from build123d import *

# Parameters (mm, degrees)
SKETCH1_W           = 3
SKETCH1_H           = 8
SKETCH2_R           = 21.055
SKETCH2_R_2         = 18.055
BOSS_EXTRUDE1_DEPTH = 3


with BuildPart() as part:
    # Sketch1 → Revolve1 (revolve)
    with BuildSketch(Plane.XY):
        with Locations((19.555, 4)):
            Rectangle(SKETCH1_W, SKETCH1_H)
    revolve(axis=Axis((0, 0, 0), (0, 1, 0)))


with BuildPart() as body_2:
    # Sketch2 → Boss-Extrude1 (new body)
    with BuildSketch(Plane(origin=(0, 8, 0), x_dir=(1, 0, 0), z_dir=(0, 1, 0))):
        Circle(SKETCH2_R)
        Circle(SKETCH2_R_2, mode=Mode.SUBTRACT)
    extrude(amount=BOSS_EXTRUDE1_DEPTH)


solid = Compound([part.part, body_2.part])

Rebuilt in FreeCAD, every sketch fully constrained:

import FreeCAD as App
import Part
import Sketcher
Q = App.Units.Quantity


def add_polygon(sketch, points):
    """Adds a closed chain of lines whose ends are joined by coincident constraints."""
    first, n = sketch.GeometryCount, len(points)
    for a, b in zip(points, points[1:] + points[:1]):
        sketch.addGeometry(Part.LineSegment(App.Vector(*a, 0), App.Vector(*b, 0)), False)
    for i in range(n):
        sketch.addConstraint(Sketcher.Constraint("Coincident", first + i, 2, first + (i + 1) % n, 1))

doc = App.newDocument("Part")
params = doc.addObject("Spreadsheet::Sheet", "Params")
for row, (alias, value) in enumerate([
    ("sketch1_width", "3 mm"),
    ("sketch1_height", "8 mm"),
    ("revolution_angle", "360 deg"),
    ("sketch2_diameter", "42.11 mm"),
    ("sketch2_diameter2", "36.11 mm"),
    ("pad1_length", "3 mm"),
], start=1):
    params.set(f"A{row}", alias)
    params.set(f"B{row}", "=" + value)
    params.setAlias(f"B{row}", alias)

body = doc.addObject("PartDesign::Body", "Body")

sketch1 = body.newObject("Sketcher::SketchObject", "Sketch")
sketch1.AttachmentSupport = (doc.getObject("XY_Plane"), [""])
sketch1.MapMode = "FlatFace"
add_polygon(sketch1, [(18.1, 8), (18.1, 0), (21.1, 0), (21.1, 8)])
sketch1.addConstraint(Sketcher.Constraint("Vertical", 0))
sketch1.addConstraint(Sketcher.Constraint("Horizontal", 1))
sketch1.addConstraint(Sketcher.Constraint("Vertical", 2))
sketch1.addConstraint(Sketcher.Constraint("Horizontal", 3))
sketch1.addConstraint(Sketcher.Constraint("PointOnObject", 0, 2, -1))
sketch1.addConstraint(Sketcher.Constraint("DistanceX", 1, 1, 1, 2, Q("3 mm")))
sketch1.addConstraint(Sketcher.Constraint("DistanceY", 0, 2, 0, 1, Q("8 mm")))
sketch1.addConstraint(Sketcher.Constraint("DistanceX", -1, 1, 0, 2, Q("18.055 mm")))
sketch1.setExpression("Constraints[9]", "Params.sketch1_width")
sketch1.setExpression("Constraints[10]", "Params.sketch1_height")
revolution = body.newObject("PartDesign::Revolution", "Revolution")
revolution.Profile = sketch1
revolution.ReferenceAxis = (sketch1, ["V_Axis"])
revolution.setExpression("Angle", "Params.revolution_angle")
body2 = doc.addObject("PartDesign::Body", "Body001")

sketch2 = body2.newObject("Sketcher::SketchObject", "Sketch001")
sketch2.AttachmentSupport = (doc.getObject("XZ_Plane001"), [""])
sketch2.MapMode = "FlatFace"
sketch2.AttachmentOffset = App.Placement(App.Vector(0, 0, -8), App.Rotation())
sketch2.addGeometry(Part.Circle(App.Vector(0, 0, 0), App.Vector(0, 0, 1), 21), False)
sketch2.addGeometry(Part.Circle(App.Vector(0, 0, 0), App.Vector(0, 0, 1), 18), False)
sketch2.addConstraint(Sketcher.Constraint("Coincident", 0, 3, -1, 1))
sketch2.addConstraint(Sketcher.Constraint("Coincident", 1, 3, -1, 1))
sketch2.addConstraint(Sketcher.Constraint("Diameter", 0, Q("42.11 mm")))
sketch2.addConstraint(Sketcher.Constraint("Diameter", 1, Q("36.11 mm")))
sketch2.setExpression("Constraints[2]", "Params.sketch2_diameter")
sketch2.setExpression("Constraints[3]", "Params.sketch2_diameter2")
pad1 = body2.newObject("PartDesign::Pad", "Pad")
pad1.Profile = sketch2
pad1.setExpression("Length", "Params.pad1_length")
pad1.Reversed = True

doc.recompute()
